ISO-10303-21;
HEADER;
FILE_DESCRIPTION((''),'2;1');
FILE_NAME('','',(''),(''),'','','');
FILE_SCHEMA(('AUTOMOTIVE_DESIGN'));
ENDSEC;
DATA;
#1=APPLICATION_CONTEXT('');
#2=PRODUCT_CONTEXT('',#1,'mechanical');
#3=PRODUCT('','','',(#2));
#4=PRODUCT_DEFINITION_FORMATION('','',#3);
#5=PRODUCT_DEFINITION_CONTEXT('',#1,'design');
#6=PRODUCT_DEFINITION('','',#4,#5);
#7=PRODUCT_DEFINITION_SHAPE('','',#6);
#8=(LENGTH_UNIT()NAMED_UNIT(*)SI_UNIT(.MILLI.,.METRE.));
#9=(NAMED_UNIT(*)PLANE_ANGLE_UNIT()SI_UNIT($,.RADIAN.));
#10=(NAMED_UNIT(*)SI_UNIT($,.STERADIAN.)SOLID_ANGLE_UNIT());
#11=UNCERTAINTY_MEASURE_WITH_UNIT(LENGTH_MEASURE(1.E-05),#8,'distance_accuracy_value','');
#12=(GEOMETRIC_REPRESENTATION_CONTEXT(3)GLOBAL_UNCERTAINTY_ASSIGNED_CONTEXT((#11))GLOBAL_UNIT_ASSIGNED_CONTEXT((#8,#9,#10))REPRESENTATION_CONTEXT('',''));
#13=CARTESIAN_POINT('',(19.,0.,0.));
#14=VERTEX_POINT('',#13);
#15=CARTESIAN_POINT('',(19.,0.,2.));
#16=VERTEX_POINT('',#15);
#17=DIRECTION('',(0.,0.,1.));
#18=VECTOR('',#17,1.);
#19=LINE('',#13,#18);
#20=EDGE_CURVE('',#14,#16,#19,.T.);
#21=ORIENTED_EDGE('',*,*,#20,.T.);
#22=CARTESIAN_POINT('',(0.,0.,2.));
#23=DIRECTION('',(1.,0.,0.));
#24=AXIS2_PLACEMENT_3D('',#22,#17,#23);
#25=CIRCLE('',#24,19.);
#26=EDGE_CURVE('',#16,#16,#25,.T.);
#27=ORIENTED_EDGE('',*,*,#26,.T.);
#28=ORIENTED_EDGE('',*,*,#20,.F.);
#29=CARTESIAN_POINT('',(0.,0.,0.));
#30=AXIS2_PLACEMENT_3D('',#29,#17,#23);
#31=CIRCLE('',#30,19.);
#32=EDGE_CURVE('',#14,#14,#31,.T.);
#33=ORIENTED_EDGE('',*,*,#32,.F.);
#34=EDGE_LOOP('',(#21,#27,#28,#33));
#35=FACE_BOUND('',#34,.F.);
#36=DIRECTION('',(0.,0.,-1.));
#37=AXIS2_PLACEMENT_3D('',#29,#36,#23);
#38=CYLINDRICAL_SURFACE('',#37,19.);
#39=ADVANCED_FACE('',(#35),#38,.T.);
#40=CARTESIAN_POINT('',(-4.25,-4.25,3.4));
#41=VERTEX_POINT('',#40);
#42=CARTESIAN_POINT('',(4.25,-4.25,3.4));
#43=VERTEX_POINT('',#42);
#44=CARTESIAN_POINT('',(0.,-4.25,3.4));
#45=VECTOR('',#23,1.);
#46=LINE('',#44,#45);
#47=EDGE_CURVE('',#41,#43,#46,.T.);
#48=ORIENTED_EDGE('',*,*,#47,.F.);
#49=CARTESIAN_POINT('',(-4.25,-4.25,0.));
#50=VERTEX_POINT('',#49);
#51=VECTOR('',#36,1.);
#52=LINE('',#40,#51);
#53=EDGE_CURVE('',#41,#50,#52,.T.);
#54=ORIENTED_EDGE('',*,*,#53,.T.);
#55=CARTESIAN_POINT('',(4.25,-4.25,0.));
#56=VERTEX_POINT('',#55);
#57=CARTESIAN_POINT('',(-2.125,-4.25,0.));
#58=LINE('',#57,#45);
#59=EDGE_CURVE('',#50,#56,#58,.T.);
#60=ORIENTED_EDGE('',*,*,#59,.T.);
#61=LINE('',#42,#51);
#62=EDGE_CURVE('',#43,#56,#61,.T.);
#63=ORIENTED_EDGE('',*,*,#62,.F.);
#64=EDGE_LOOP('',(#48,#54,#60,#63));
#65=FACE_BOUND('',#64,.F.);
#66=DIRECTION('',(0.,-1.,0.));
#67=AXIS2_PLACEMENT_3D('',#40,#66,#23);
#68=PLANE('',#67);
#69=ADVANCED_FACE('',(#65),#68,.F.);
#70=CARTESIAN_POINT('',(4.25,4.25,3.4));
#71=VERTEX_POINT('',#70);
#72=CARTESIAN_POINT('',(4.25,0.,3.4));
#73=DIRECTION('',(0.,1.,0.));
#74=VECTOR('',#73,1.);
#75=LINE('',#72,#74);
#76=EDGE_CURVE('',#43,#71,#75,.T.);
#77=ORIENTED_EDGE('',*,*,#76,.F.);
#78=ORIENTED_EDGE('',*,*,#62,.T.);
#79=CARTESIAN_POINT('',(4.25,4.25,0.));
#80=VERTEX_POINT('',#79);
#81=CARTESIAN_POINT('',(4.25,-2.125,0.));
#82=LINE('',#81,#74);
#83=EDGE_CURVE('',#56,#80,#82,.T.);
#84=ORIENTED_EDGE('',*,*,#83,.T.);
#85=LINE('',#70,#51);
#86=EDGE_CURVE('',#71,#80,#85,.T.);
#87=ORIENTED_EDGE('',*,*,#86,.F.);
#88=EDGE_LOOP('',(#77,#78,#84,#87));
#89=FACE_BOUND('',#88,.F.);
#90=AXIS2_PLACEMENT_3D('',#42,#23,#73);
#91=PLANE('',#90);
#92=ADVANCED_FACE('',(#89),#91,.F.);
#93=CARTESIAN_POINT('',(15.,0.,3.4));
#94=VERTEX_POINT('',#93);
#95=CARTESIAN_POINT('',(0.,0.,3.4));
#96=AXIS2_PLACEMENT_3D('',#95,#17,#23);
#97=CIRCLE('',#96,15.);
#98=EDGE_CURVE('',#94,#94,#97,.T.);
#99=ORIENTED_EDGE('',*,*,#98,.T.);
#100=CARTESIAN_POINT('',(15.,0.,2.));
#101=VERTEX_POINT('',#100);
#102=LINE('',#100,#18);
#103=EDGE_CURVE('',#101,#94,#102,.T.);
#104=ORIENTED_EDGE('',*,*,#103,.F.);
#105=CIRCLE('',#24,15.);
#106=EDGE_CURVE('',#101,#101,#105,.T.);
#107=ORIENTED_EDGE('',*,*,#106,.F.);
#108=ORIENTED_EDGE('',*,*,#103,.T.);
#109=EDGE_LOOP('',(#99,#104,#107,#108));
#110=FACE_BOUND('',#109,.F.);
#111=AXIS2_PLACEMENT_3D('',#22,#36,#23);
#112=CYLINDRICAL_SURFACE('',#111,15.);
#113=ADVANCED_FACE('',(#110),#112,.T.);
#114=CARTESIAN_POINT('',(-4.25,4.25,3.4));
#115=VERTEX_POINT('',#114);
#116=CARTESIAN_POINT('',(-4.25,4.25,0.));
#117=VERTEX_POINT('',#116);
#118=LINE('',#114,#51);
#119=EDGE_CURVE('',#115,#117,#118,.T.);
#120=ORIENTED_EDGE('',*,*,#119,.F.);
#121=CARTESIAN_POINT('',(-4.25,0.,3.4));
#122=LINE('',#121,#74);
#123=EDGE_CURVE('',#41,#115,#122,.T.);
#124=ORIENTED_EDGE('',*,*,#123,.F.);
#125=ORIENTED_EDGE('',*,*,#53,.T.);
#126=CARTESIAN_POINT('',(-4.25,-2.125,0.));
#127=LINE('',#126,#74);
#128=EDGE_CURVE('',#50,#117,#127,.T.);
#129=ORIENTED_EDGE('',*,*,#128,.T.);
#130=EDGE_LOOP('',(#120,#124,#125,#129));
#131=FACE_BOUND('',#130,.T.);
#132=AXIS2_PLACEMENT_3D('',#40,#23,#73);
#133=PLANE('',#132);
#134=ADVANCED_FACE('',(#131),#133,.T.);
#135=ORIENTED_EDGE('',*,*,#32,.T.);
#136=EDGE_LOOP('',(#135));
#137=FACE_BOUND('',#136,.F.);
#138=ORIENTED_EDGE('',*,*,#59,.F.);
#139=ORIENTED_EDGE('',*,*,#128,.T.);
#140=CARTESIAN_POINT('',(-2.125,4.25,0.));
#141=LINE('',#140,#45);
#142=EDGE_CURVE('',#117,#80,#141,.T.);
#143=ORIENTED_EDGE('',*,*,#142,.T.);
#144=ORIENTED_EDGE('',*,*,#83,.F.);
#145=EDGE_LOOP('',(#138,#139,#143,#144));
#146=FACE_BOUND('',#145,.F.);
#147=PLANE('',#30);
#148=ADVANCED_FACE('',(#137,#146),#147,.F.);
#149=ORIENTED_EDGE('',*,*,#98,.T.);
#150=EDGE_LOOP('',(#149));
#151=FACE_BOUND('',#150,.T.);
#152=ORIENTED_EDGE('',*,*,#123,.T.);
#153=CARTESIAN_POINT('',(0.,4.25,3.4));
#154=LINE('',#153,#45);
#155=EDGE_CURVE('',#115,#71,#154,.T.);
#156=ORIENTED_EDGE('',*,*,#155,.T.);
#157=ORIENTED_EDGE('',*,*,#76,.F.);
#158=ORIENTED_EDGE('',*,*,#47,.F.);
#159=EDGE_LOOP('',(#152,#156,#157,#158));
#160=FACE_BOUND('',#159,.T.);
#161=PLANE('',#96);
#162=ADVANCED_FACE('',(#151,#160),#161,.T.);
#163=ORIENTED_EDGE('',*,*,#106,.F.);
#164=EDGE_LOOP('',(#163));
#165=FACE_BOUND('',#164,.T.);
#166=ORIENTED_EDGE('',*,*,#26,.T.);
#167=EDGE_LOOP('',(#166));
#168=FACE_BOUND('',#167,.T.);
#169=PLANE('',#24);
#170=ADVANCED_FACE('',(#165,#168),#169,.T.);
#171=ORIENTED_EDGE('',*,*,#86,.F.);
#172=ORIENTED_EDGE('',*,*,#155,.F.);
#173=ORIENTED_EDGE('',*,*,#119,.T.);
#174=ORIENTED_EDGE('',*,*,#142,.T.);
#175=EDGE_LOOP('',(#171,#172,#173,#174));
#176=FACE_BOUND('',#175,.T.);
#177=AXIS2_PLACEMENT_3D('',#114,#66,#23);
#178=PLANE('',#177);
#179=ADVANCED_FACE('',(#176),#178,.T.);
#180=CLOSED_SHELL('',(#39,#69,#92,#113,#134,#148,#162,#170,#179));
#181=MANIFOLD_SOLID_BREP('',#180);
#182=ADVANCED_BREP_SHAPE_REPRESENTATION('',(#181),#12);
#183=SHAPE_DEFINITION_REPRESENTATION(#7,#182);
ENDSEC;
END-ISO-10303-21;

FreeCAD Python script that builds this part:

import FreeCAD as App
import Part
import Sketcher
from FreeCAD import Vector
Q = App.Units.Quantity


def add_polygon(sketch, points):
    """Adds a closed chain of lines whose ends are joined by coincident constraints."""
    first, n = sketch.GeometryCount, len(points)
    for a, b in zip(points, points[1:] + points[:1]):
        sketch.addGeometry(Part.LineSegment(App.Vector(*a, 0), App.Vector(*b, 0)), False)
    for i in range(n):
        sketch.addConstraint(Sketcher.Constraint("Coincident", first + i, 2, first + (i + 1) % n, 1))

doc = App.newDocument("Part")
body = doc.addObject("PartDesign::Body", "Body")

sketch1 = body.newObject("Sketcher::SketchObject", "Sketch")
sketch1.AttachmentSupport = (doc.getObject("XY_Plane"), [""])
sketch1.MapMode = "FlatFace"
sketch1.addGeometry(Part.Circle(Vector(0, 0, 0), Vector(0, 0, 1), 19), False)
sketch1.addGeometry(Part.Circle(Vector(0, 0, 0), Vector(0, 0, 1), 4), False)
sketch1.addConstraint(Sketcher.Constraint("Coincident", 0, 3, -1, 1))
sketch1.addConstraint(Sketcher.Constraint("Coincident", 1, 3, -1, 1))
sketch1.addConstraint(Sketcher.Constraint("Diameter", 0, Q("38 mm")))
sketch1.addConstraint(Sketcher.Constraint("Diameter", 1, Q("8 mm")))
pad1 = body.newObject("PartDesign::Pad", "Pad")
pad1.Profile = sketch1
pad1.Length = 2

sketch2 = body.newObject("Sketcher::SketchObject", "Sketch001")
sketch2.AttachmentSupport = (doc.getObject("XY_Plane"), [""])
sketch2.MapMode = "FlatFace"
sketch2.AttachmentOffset = App.Placement(Vector(0, 0, 2), App.Rotation())
sketch2.addGeometry(Part.Circle(Vector(0, 0, 0), Vector(0, 0, 1), 15), False)
sketch2.addGeometry(Part.Circle(Vector(0, 0, 0), Vector(0, 0, 1), 4), False)
sketch2.addConstraint(Sketcher.Constraint("Coincident", 0, 3, -1, 1))
sketch2.addConstraint(Sketcher.Constraint("Coincident", 1, 3, -1, 1))
sketch2.addConstraint(Sketcher.Constraint("Diameter", 0, Q("30 mm")))
sketch2.addConstraint(Sketcher.Constraint("Diameter", 1, Q("8 mm")))
pad2 = body.newObject("PartDesign::Pad", "Pad001")
pad2.Profile = sketch2
pad2.Length = 1.4

sketch3 = body.newObject("Sketcher::SketchObject", "Sketch002")
sketch3.AttachmentSupport = (doc.getObject("XY_Plane"), [""])
sketch3.MapMode = "FlatFace"
sketch3.AttachmentOffset = App.Placement(Vector(0, 0, 3.4), App.Rotation())
add_polygon(sketch3, [(-4.25, 4.25), (-4.25, -4.25), (4.25, -4.25), (4.25, 4.25)])
sketch3.addConstraint(Sketcher.Constraint("Vertical", 0))
sketch3.addConstraint(Sketcher.Constraint("Horizontal", 1))
sketch3.addConstraint(Sketcher.Constraint("Vertical", 2))
sketch3.addConstraint(Sketcher.Constraint("Horizontal", 3))
sketch3.addConstraint(Sketcher.Constraint("Symmetric", 0, 2, 2, 2, -1, 1))
sketch3.addConstraint(Sketcher.Constraint("Equal", 3, 0))
sketch3.addConstraint(Sketcher.Constraint("DistanceX", 1, 1, 1, 2, Q("8.5 mm")))
pocket1 = body.newObject("PartDesign::Pocket", "Pocket")
pocket1.Profile = sketch3
pocket1.Length = 6

doc.recompute()
